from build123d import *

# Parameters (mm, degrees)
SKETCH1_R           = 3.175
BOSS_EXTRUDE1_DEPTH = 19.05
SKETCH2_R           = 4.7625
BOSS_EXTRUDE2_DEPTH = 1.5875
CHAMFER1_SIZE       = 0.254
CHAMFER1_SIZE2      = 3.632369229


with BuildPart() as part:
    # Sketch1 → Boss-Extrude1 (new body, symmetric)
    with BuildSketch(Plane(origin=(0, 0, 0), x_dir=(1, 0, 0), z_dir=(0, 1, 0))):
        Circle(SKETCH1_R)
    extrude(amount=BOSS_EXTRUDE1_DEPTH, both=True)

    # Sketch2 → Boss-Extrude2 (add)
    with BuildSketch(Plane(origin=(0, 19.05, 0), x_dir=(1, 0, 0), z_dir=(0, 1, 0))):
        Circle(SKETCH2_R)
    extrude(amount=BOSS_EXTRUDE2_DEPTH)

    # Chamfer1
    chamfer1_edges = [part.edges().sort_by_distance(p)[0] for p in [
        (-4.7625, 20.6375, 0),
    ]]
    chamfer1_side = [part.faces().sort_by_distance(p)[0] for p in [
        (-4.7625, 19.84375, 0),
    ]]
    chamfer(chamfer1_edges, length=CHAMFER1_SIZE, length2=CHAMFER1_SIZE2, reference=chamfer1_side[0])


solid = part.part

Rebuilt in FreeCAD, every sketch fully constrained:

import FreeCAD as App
import Part
import Sketcher

V = App.Vector
Q = App.Units.Quantity


def edges_at(feature, points):
    """Names of the edges that pass closest to the given points."""
    edges = feature.Shape.Edges
    near = lambda p: min(range(len(edges)), key=lambda i: edges[i].distToShape(Part.Vertex(*p))[0])
    return sorted({f"Edge{near(p) + 1}" for p in points})

doc = App.newDocument("Part")
body = doc.addObject("PartDesign::Body", "Body")

# Sketch on XZ plane
sketch1 = body.newObject("Sketcher::SketchObject", "Sketch")
sketch1.AttachmentSupport = (doc.getObject("XZ_Plane"), [""])
sketch1.MapMode = "FlatFace"
sketch1.addGeometry(Part.Circle(V(0, 0, 0), V(0, 0, 1), 3.2), False)
sketch1.addConstraint([
    Sketcher.Constraint("Coincident", 0, 3, -1, 1),
    Sketcher.Constraint("Diameter", 0, Q("0.25 in")),
])
pad1 = body.newObject("PartDesign::Pad", "Pad")
pad1.Profile = sketch1
pad1.Length = Q("1.5 in")
pad1.Midplane = True

# Sketch on XZ plane
sketch2 = body.newObject("Sketcher::SketchObject", "Sketch001")
sketch2.AttachmentSupport = (doc.getObject("XZ_Plane"), [""])
sketch2.MapMode = "FlatFace"
sketch2.AttachmentOffset = App.Placement(V(0, 0, -0.75 * 25.4), App.Rotation())
sketch2.addGeometry(Part.Circle(V(0, 0, 0), V(0, 0, 1), 4.8), False)
sketch2.addConstraint([
    Sketcher.Constraint("Coincident", 0, 3, -1, 1),
    Sketcher.Constraint("Diameter", 0, Q("0.375 in")),
])
pad2 = body.newObject("PartDesign::Pad", "Pad001")
pad2.Profile = sketch2
pad2.Length = Q("0.0625 in")
pad2.Reversed = True
doc.recompute()

chamfer = body.newObject("PartDesign::Chamfer", "Chamfer")
chamfer.Base = (pad2, edges_at(pad2, [(-4.763, 20.637, 0)]))
chamfer.ChamferType = "Two distances"
chamfer.Size = Q("0.01 in")
chamfer.Size2 = 3.632369

doc.recompute()
